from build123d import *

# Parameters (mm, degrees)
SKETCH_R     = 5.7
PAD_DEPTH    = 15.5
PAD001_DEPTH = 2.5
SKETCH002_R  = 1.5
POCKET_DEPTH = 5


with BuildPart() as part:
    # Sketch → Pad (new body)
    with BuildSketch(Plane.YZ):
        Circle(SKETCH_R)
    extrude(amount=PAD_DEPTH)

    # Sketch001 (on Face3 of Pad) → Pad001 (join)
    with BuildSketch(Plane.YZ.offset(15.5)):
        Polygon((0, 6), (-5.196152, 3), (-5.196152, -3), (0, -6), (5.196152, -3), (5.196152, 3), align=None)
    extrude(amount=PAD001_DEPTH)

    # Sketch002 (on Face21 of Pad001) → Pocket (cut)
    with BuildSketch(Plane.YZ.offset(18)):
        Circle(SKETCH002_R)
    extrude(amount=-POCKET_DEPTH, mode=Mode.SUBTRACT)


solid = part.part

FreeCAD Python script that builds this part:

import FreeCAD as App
import Part
import Sketcher
Q = App.Units.Quantity


def add_polygon(sketch, points):
    """Adds a closed chain of lines whose ends are joined by coincident constraints."""
    first, n = sketch.GeometryCount, len(points)
    for a, b in zip(points, points[1:] + points[:1]):
        sketch.addGeometry(Part.LineSegment(App.Vector(*a, 0), App.Vector(*b, 0)), False)
    for i in range(n):
        sketch.addConstraint(Sketcher.Constraint("Coincident", first + i, 2, first + (i + 1) % n, 1))

doc = App.newDocument("Part")
body = doc.addObject("PartDesign::Body", "Body")

# Sketch on YZ plane
sketch1 = doc.addObject("Sketcher::SketchObject", "Sketch")
body.addObject(sketch1)
sketch1.AttachmentSupport = (doc.YZ_Plane, [""])
sketch1.MapMode = "FlatFace"
sketch1.addGeometry(Part.Circle(App.Vector(0, 0, 0), App.Vector(0, 0, 1), 5.7), False)
sketch1.addConstraint([
    Sketcher.Constraint("Coincident", 0, 3, -1, 1),
    Sketcher.Constraint("Diameter", 0, 11.4),
])
pad1 = doc.addObject("PartDesign::Pad", "Pad")
body.addObject(pad1)
pad1.Profile = sketch1
pad1.Length = 15.5

# Sketch on YZ plane
sketch2 = doc.addObject("Sketcher::SketchObject", "Sketch001")
body.addObject(sketch2)
sketch2.AttachmentSupport = (doc.YZ_Plane, [""])
sketch2.MapMode = "FlatFace"
sketch2.AttachmentOffset = App.Placement(App.Vector(0, 0, 15.5), App.Rotation())
add_polygon(sketch2, [(0, 6), (-5.196152, 3), (-5.196152, -3), (0, -6), (5.196152, -3), (5.196152, 3)])  # lines 0-5
sketch2.addConstraint([
    Sketcher.Constraint("Vertical", 1),
    Sketcher.Constraint("Vertical", 4),
    Sketcher.Constraint("Symmetric", 0, 2, 3, 2, -1, 1),
    Sketcher.Constraint("Symmetric", 2, 2, 5, 2, -1, 1),
    Sketcher.Constraint("PointOnObject", 2, 2, -2),
    Sketcher.Constraint("Parallel", 2, 5),
    Sketcher.Constraint("Horizontal", 1, 2, 3, 2),
    Sketcher.Constraint("DistanceY", 1, 2, 1, 1, 6.0),
    Sketcher.Constraint("Angle", 0, Q("-149.999998 deg")),
    Sketcher.Constraint("Distance", 0, 6.0),
])
pad2 = doc.addObject("PartDesign::Pad", "Pad001")
body.addObject(pad2)
pad2.Profile = sketch2
pad2.Length = 2.5

# Sketch on YZ plane
sketch3 = doc.addObject("Sketcher::SketchObject", "Sketch002")
body.addObject(sketch3)
sketch3.AttachmentSupport = (doc.YZ_Plane, [""])
sketch3.MapMode = "FlatFace"
sketch3.AttachmentOffset = App.Placement(App.Vector(0, 0, 18), App.Rotation())
sketch3.addGeometry(Part.Circle(App.Vector(0, 0, 0), App.Vector(0, 0, 1), 1.5), False)
sketch3.addConstraint([
    Sketcher.Constraint("Coincident", 0, 3, -1, 1),
    Sketcher.Constraint("Diameter", 0, 3.0),
])
pocket1 = doc.addObject("PartDesign::Pocket", "Pocket")
body.addObject(pocket1)
pocket1.Profile = sketch3
pocket1.Length = 5

doc.recompute()
